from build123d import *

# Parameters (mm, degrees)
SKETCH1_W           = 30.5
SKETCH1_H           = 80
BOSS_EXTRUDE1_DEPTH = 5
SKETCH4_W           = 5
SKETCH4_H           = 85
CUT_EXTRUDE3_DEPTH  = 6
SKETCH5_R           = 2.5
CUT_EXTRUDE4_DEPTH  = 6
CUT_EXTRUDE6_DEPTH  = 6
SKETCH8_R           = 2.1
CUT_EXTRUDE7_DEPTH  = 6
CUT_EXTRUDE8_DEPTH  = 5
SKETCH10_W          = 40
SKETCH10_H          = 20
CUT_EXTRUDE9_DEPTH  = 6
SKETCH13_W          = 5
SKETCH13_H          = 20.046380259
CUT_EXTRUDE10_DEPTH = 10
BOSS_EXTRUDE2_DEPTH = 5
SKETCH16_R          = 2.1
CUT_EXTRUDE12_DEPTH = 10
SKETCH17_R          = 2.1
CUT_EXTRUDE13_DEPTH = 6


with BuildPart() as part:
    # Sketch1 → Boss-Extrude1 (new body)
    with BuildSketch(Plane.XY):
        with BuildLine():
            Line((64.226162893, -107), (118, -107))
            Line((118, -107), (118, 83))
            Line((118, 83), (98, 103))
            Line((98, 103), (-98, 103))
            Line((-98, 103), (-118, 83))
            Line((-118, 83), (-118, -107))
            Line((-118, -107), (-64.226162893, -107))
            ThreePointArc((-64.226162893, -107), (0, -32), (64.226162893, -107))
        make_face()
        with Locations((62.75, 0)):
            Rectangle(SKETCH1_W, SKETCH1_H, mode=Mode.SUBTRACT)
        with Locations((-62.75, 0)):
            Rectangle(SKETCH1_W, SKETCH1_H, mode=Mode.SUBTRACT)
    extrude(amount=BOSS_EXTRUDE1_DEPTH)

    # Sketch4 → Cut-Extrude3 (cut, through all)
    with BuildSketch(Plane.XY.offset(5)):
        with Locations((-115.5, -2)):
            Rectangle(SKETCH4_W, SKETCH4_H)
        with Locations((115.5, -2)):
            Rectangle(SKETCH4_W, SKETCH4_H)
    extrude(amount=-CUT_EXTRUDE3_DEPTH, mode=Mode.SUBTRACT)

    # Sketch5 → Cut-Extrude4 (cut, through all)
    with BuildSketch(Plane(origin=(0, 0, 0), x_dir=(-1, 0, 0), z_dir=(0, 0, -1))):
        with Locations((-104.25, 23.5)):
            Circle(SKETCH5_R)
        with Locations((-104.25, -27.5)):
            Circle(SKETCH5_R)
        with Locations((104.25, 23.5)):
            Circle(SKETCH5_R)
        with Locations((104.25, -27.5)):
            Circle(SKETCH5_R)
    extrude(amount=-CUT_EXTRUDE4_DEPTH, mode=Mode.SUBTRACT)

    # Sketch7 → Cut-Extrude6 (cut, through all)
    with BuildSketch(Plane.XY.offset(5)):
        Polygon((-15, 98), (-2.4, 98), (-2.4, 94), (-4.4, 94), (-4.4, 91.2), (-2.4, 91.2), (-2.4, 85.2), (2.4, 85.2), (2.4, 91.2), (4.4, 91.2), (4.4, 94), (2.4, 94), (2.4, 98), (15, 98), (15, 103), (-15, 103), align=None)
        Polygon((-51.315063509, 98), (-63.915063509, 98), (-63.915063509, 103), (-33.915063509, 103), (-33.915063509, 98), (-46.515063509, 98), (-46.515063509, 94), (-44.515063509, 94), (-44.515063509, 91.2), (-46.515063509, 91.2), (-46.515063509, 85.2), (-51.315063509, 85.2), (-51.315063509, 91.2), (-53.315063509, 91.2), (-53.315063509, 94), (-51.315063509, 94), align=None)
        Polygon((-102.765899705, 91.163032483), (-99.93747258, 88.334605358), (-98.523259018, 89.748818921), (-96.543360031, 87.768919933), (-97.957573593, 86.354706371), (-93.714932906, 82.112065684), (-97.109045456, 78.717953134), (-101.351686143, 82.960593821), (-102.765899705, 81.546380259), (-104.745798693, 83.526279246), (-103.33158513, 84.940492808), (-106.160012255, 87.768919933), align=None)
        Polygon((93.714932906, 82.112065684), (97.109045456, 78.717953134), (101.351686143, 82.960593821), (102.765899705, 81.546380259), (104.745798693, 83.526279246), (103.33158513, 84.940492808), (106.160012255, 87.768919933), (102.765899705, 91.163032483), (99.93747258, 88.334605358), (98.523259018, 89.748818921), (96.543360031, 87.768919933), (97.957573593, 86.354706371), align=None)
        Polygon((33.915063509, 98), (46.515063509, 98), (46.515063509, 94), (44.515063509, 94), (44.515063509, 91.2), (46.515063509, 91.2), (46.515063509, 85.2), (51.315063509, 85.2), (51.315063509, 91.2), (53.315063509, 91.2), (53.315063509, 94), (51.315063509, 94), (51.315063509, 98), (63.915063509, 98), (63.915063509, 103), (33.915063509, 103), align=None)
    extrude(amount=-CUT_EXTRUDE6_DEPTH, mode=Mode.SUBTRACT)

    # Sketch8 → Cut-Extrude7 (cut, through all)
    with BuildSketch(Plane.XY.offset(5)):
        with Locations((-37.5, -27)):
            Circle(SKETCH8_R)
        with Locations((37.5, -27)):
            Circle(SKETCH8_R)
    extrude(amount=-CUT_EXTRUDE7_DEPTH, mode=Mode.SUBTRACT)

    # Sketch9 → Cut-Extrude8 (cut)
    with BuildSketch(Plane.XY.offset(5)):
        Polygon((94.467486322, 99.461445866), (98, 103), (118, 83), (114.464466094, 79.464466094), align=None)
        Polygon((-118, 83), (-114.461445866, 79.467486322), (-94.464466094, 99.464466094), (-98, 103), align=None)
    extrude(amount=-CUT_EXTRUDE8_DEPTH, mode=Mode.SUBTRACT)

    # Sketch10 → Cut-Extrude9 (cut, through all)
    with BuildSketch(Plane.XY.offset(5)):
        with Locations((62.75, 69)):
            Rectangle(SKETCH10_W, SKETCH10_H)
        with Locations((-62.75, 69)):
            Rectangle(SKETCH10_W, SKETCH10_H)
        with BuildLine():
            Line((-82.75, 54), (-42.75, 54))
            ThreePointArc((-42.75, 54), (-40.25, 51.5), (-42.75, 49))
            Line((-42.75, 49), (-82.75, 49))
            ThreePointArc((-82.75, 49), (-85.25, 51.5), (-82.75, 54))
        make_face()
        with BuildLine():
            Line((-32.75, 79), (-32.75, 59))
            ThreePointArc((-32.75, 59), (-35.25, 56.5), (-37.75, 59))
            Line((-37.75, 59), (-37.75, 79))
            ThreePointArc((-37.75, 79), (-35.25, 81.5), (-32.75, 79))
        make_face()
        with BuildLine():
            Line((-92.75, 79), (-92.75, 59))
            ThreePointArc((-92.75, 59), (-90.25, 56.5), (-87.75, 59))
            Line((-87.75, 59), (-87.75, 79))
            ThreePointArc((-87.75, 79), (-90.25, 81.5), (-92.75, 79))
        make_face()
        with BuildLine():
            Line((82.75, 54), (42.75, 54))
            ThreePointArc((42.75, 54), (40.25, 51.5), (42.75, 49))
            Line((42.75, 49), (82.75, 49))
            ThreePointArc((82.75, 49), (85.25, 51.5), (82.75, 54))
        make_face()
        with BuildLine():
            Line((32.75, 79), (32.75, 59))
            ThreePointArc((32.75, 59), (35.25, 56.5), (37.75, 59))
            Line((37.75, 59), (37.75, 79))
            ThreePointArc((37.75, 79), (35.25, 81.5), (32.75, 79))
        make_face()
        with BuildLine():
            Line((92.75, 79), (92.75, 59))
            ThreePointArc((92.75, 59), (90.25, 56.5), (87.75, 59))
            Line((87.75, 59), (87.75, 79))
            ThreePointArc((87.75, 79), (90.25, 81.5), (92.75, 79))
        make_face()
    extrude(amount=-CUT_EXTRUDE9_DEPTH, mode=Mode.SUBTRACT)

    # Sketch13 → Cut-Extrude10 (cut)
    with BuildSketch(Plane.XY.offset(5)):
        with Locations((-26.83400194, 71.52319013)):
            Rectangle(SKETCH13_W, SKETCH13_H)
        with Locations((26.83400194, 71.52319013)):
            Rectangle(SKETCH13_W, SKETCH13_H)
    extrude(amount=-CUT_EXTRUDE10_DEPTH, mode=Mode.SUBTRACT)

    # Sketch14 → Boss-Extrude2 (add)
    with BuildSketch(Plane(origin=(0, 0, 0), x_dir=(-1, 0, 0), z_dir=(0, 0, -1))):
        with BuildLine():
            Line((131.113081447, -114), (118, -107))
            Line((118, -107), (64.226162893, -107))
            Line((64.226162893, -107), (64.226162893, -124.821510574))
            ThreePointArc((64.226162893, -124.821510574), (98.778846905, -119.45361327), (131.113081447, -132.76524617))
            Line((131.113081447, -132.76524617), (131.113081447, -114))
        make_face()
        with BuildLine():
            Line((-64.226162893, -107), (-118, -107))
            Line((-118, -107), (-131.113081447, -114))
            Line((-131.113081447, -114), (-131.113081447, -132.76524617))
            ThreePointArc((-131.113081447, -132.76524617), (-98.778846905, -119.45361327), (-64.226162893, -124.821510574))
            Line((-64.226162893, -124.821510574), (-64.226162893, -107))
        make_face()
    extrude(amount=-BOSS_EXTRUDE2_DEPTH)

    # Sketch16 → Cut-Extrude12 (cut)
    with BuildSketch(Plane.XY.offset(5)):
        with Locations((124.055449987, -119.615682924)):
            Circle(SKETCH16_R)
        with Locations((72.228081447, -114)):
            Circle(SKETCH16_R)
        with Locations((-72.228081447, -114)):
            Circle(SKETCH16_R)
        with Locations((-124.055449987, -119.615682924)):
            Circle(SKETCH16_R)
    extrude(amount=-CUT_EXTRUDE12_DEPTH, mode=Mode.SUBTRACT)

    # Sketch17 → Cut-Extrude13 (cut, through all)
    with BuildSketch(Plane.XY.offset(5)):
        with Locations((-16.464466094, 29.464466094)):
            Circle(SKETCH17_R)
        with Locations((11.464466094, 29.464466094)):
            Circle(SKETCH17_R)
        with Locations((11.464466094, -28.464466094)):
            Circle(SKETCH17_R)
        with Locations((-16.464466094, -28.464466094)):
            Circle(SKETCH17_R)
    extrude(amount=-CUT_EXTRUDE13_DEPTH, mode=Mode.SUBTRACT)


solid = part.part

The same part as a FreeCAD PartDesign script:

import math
import FreeCAD as App
import Part
import Sketcher
from FreeCAD import Vector
Q = App.Units.Quantity

doc = App.newDocument("Part")
body = doc.addObject("PartDesign::Body", "Body")

# Sketch on XY plane
sketch1 = body.newObject("Sketcher::SketchObject", "Sketch")
sketch1.AttachmentSupport = (doc.getObject("XY_Plane"), [""])
sketch1.MapMode = "FlatFace"
sketch1.addGeometry([
    Part.LineSegment(Vector(64, -107, 0), Vector(118, -107, 0)),  # 0
    Part.LineSegment(Vector(118, -107, 0), Vector(118, 83, 0)),  # 1
    Part.LineSegment(Vector(118, 83, 0), Vector(98, 103, 0)),  # 2
    Part.LineSegment(Vector(98, 103, 0), Vector(-98, 103, 0)),  # 3
    Part.LineSegment(Vector(-98, 103, 0), Vector(-118, 83, 0)),  # 4
    Part.LineSegment(Vector(-118, 83, 0), Vector(-118, -107, 0)),  # 5
    Part.LineSegment(Vector(-118, -107, 0), Vector(-64, -107, 0)),  # 6
    Part.ArcOfCircle(Part.Circle(Vector(0, -97, 0), Vector(0, 0, 1), 65), math.radians(-9), math.radians(189)),  # 7
    Part.LineSegment(Vector(-48, -40, 0), Vector(-78, -40, 0)),  # 8
    Part.LineSegment(Vector(-78, -40, 0), Vector(-78, 40, 0)),  # 9
    Part.LineSegment(Vector(-78, 40, 0), Vector(-48, 40, 0)),  # 10
    Part.LineSegment(Vector(-48, 40, 0), Vector(-48, -40, 0)),  # 11
    Part.LineSegment(Vector(78, -40, 0), Vector(48, -40, 0)),  # 12
    Part.LineSegment(Vector(48, -40, 0), Vector(48, 40, 0)),  # 13
    Part.LineSegment(Vector(48, 40, 0), Vector(78, 40, 0)),  # 14
    Part.LineSegment(Vector(78, 40, 0), Vector(78, -40, 0)),  # 15
], False)
sketch1.addConstraint([
    Sketcher.Constraint("Coincident", 0, 2, 1, 1),
    Sketcher.Constraint("Coincident", 1, 2, 2, 1),
    Sketcher.Constraint("Coincident", 2, 2, 3, 1),
    Sketcher.Constraint("Coincident", 3, 2, 4, 1),
    Sketcher.Constraint("Coincident", 4, 2, 5, 1),
    Sketcher.Constraint("Coincident", 5, 2, 6, 1),
    Sketcher.Constraint("Coincident", 6, 2, 7, 2),
    Sketcher.Constraint("Coincident", 7, 1, 0, 1),
    Sketcher.Constraint("Coincident", 8, 2, 9, 1),
    Sketcher.Constraint("Coincident", 9, 2, 10, 1),
    Sketcher.Constraint("Coincident", 10, 2, 11, 1),
    Sketcher.Constraint("Coincident", 11, 2, 8, 1),
    Sketcher.Constraint("Coincident", 12, 2, 13, 1),
    Sketcher.Constraint("Coincident", 13, 2, 14, 1),
    Sketcher.Constraint("Coincident", 14, 2, 15, 1),
    Sketcher.Constraint("Coincident", 15, 2, 12, 1),
    Sketcher.Constraint("Horizontal", 0),
    Sketcher.Constraint("Vertical", 1),
    Sketcher.Constraint("Horizontal", 3),
    Sketcher.Constraint("Vertical", 5),
    Sketcher.Constraint("Horizontal", 6),
    Sketcher.Constraint("Horizontal", 8),
    Sketcher.Constraint("Vertical", 9),
    Sketcher.Constraint("Horizontal", 10),
    Sketcher.Constraint("Vertical", 11),
    Sketcher.Constraint("Horizontal", 12),
    Sketcher.Constraint("Vertical", 13),
    Sketcher.Constraint("Horizontal", 14),
    Sketcher.Constraint("Vertical", 15),
    Sketcher.Constraint("Symmetric", 10, 2, 12, 2, -1, 1),
    Sketcher.Constraint("Symmetric", 8, 2, 14, 2, -1, 1),
    Sketcher.Constraint("Symmetric", 1, 2, 4, 2, -2),
    Sketcher.Constraint("Symmetric", 6, 2, 7, 1, -2),
    Sketcher.Constraint("Perpendicular", 2, 4),
    Sketcher.Constraint("Horizontal", 11, 2, 12, 2),
    Sketcher.Constraint("Equal", 2, 4),
    Sketcher.Constraint("Radius", 7, Q("65 mm")),
    Sketcher.Constraint("DistanceX", 3, 2, 3, 1, Q("196 mm")),
    Sketcher.Constraint("DistanceY", 1, 1, 1, 2, Q("190 mm")),
    Sketcher.Constraint("DistanceY", 9, 1, 9, 2, Q("80 mm")),
    Sketcher.Constraint("DistanceX", 8, 2, 8, 1, Q("30.5 mm")),
    Sketcher.Constraint("DistanceY", 7, 3, -1, 1, Q("97 mm")),
    Sketcher.Constraint("DistanceX", -1, 1, 0, 2, Q("118 mm")),
    Sketcher.Constraint("DistanceY", 0, 2, -1, 1, Q("107 mm")),
    Sketcher.Constraint("DistanceX", 8, 2, -1, 1, Q("78 mm")),
])
pad1 = body.newObject("PartDesign::Pad", "Pad")
pad1.Profile = sketch1
pad1.Length = 5

# Sketch on XY plane
sketch2 = body.newObject("Sketcher::SketchObject", "Sketch001")
sketch2.AttachmentSupport = (doc.getObject("XY_Plane"), [""])
sketch2.MapMode = "FlatFace"
sketch2.AttachmentOffset = App.Placement(Vector(0, 0, 5), App.Rotation())
sketch2.addGeometry([
    Part.LineSegment(Vector(-118, 40, 0), Vector(-118, -44, 0)),  # 0
    Part.LineSegment(Vector(-118, -44, 0), Vector(-113, -44, 0)),  # 1
    Part.LineSegment(Vector(-113, -44, 0), Vector(-113, 40, 0)),  # 2
    Part.LineSegment(Vector(-113, 40, 0), Vector(-118, 40, 0)),  # 3
    Part.LineSegment(Vector(113, 40, 0), Vector(113, -44, 0)),  # 4
    Part.LineSegment(Vector(113, -44, 0), Vector(118, -44, 0)),  # 5
    Part.LineSegment(Vector(118, -44, 0), Vector(118, 40, 0)),  # 6
    Part.LineSegment(Vector(118, 40, 0), Vector(113, 40, 0)),  # 7
], False)
sketch2.addConstraint([
    Sketcher.Constraint("Coincident", 0, 2, 1, 1),
    Sketcher.Constraint("Coincident", 1, 2, 2, 1),
    Sketcher.Constraint("Coincident", 2, 2, 3, 1),
    Sketcher.Constraint("Coincident", 3, 2, 0, 1),
    Sketcher.Constraint("Coincident", 4, 2, 5, 1),
    Sketcher.Constraint("Coincident", 5, 2, 6, 1),
    Sketcher.Constraint("Coincident", 6, 2, 7, 1),
    Sketcher.Constraint("Coincident", 7, 2, 4, 1),
    Sketcher.Constraint("Vertical", 0),
    Sketcher.Constraint("Horizontal", 1),
    Sketcher.Constraint("Vertical", 2),
    Sketcher.Constraint("Horizontal", 3),
    Sketcher.Constraint("Vertical", 4),
    Sketcher.Constraint("Horizontal", 5),
    Sketcher.Constraint("Vertical", 6),
    Sketcher.Constraint("Horizontal", 7),
    Sketcher.Constraint("Symmetric", 1, 2, 4, 2, -2),
    Sketcher.Constraint("Symmetric", 3, 2, 6, 2, -2),
    Sketcher.Constraint("DistanceX", 1, 1, 1, 2, Q("5 mm")),
    Sketcher.Constraint("DistanceY", 0, 2, 0, 1, Q("85 mm")),
    Sketcher.Constraint("DistanceX", 0, 2, -1, 1, Q("118 mm")),
    Sketcher.Constraint("DistanceY", 0, 2, -1, 1, Q("44.5 mm")),
])
pocket1 = body.newObject("PartDesign::Pocket", "Pocket")
pocket1.Profile = sketch2
pocket1.Type = "ThroughAll"

# Sketch on XY plane
sketch3 = body.newObject("Sketcher::SketchObject", "Sketch002")
sketch3.AttachmentSupport = (doc.getObject("XY_Plane"), [""])
sketch3.MapMode = "FlatFace"
sketch3.addGeometry([
    Part.Circle(Vector(104.2, 23.5, 0), Vector(0, 0, 1), 2.5),
    Part.Circle(Vector(104.2, -27.5, 0), Vector(0, 0, 1), 2.5),
    Part.Circle(Vector(-104.2, 23.5, 0), Vector(0, 0, 1), 2.5),
    Part.Circle(Vector(-104.2, -27.5, 0), Vector(0, 0, 1), 2.5),
], False)
sketch3.addConstraint([
    Sketcher.Constraint("Equal", 0, 1),
    Sketcher.Constraint("Equal", 1, 2),
    Sketcher.Constraint("Equal", 2, 3),
    Sketcher.Constraint("Symmetric", 0, 3, 2, 3, -2),
    Sketcher.Constraint("Symmetric", 1, 3, 3, 3, -2),
    Sketcher.Constraint("Vertical", 0, 3, 1, 3),
    Sketcher.Constraint("Diameter", 0, Q("5 mm")),
    Sketcher.Constraint("DistanceY", 1, 3, 0, 3, Q("51 mm")),
    Sketcher.Constraint("DistanceY", -1, 1, 0, 3, Q("23.5 mm")),
    Sketcher.Constraint("DistanceX", 2, 3, 0, 3, Q("208.5 mm")),
])
pocket2 = body.newObject("PartDesign::Pocket", "Pocket001")
pocket2.Profile = sketch3
pocket2.Type = "ThroughAll"
pocket2.Reversed = True

# Sketch on XY plane
sketch4 = body.newObject("Sketcher::SketchObject", "Sketch003")
sketch4.AttachmentSupport = (doc.getObject("XY_Plane"), [""])
sketch4.MapMode = "FlatFace"
sketch4.AttachmentOffset = App.Placement(Vector(0, 0, 5), App.Rotation())
sketch4.addGeometry([
    Part.LineSegment(Vector(-15, 98, 0), Vector(-2.4, 98, 0)),  # 0
    Part.LineSegment(Vector(-2.4, 98, 0), Vector(-2.4, 94, 0)),  # 1
    Part.LineSegment(Vector(-2.4, 94, 0), Vector(-4.4, 94, 0)),  # 2
    Part.LineSegment(Vector(-4.4, 94, 0), Vector(-4.4, 91.2, 0)),  # 3
    Part.LineSegment(Vector(-4.4, 91.2, 0), Vector(-2.4, 91.2, 0)),  # 4
    Part.LineSegment(Vector(-2.4, 91.2, 0), Vector(-2.4, 85.2, 0)),  # 5
    Part.LineSegment(Vector(-2.4, 85.2, 0), Vector(2.4, 85.2, 0)),  # 6
    Part.LineSegment(Vector(2.4, 85.2, 0), Vector(2.4, 91.2, 0)),  # 7
    Part.LineSegment(Vector(2.4, 91.2, 0), Vector(4.4, 91.2, 0)),  # 8
    Part.LineSegment(Vector(4.4, 91.2, 0), Vector(4.4, 94, 0)),  # 9
    Part.LineSegment(Vector(4.4, 94, 0), Vector(2.4, 94, 0)),  # 10
    Part.LineSegment(Vector(2.4, 94, 0), Vector(2.4, 98, 0)),  # 11
    Part.LineSegment(Vector(2.4, 98, 0), Vector(15, 98, 0)),  # 12
    Part.LineSegment(Vector(15, 98, 0), Vector(15, 103, 0)),  # 13
    Part.LineSegment(Vector(15, 103, 0), Vector(-15, 103, 0)),  # 14
    Part.LineSegment(Vector(-15, 103, 0), Vector(-15, 98, 0)),  # 15
    Part.LineSegment(Vector(-63.9, 98, 0), Vector(-51.3, 98, 0)),  # 16
    Part.LineSegment(Vector(-51.3, 98, 0), Vector(-51.3, 94, 0)),  # 17
    Part.LineSegment(Vector(-51.3, 94, 0), Vector(-53.3, 94, 0)),  # 18
    Part.LineSegment(Vector(-53.3, 94, 0), Vector(-53.3, 91.2, 0)),  # 19
    Part.LineSegment(Vector(-53.3, 91.2, 0), Vector(-51.3, 91.2, 0)),  # 20
    Part.LineSegment(Vector(-51.3, 91.2, 0), Vector(-51.3, 85.2, 0)),  # 21
    Part.LineSegment(Vector(-51.3, 85.2, 0), Vector(-46.5, 85.2, 0)),  # 22
    Part.LineSegment(Vector(-46.5, 85.2, 0), Vector(-46.5, 91.2, 0)),  # 23
    Part.LineSegment(Vector(-46.5, 91.2, 0), Vector(-44.5, 91.2, 0)),  # 24
    Part.LineSegment(Vector(-44.5, 91.2, 0), Vector(-44.5, 94, 0)),  # 25
    Part.LineSegment(Vector(-44.5, 94, 0), Vector(-46.5, 94, 0)),  # 26
    Part.LineSegment(Vector(-46.5, 94, 0), Vector(-46.5, 98, 0)),  # 27
    Part.LineSegment(Vector(-46.5, 98, 0), Vector(-33.9, 98, 0)),  # 28
    Part.LineSegment(Vector(-33.9, 98, 0), Vector(-33.9, 103, 0)),  # 29
    Part.LineSegment(Vector(-33.9, 103, 0), Vector(-63.9, 103, 0)),  # 30
    Part.LineSegment(Vector(-63.9, 103, 0), Vector(-63.9, 98, 0)),  # 31
    Part.LineSegment(Vector(-99.9, 88.3, 0), Vector(-102.8, 91.2, 0)),  # 32
    Part.LineSegment(Vector(-102.8, 91.2, 0), Vector(-106.2, 87.8, 0)),  # 33
    Part.LineSegment(Vector(-106.2, 87.8, 0), Vector(-103.3, 84.9, 0)),  # 34
    Part.LineSegment(Vector(-103.3, 84.9, 0), Vector(-104.7, 83.5, 0)),  # 35
    Part.LineSegment(Vector(-104.7, 83.5, 0), Vector(-102.8, 81.5, 0)),  # 36
    Part.LineSegment(Vector(-102.8, 81.5, 0), Vector(-101.4, 83, 0)),  # 37
    Part.LineSegment(Vector(-101.4, 83, 0), Vector(-97.1, 78.7, 0)),  # 38
    Part.LineSegment(Vector(-97.1, 78.7, 0), Vector(-93.7, 82.1, 0)),  # 39
    Part.LineSegment(Vector(-93.7, 82.1, 0), Vector(-98, 86.4, 0)),  # 40
    Part.LineSegment(Vector(-98, 86.4, 0), Vector(-96.5, 87.8, 0)),  # 41
    Part.LineSegment(Vector(-96.5, 87.8, 0), Vector(-98.5, 89.7, 0)),  # 42
    Part.LineSegment(Vector(-98.5, 89.7, 0), Vector(-99.9, 88.3, 0)),  # 43
    Part.LineSegment(Vector(93.7, 82.1, 0), Vector(97.1, 78.7, 0)),  # 44
    Part.LineSegment(Vector(97.1, 78.7, 0), Vector(101.4, 83, 0)),  # 45
    Part.LineSegment(Vector(101.4, 83, 0), Vector(102.8, 81.5, 0)),  # 46
    Part.LineSegment(Vector(102.8, 81.5, 0), Vector(104.7, 83.5, 0)),  # 47
    Part.LineSegment(Vector(104.7, 83.5, 0), Vector(103.3, 84.9, 0)),  # 48
    Part.LineSegment(Vector(103.3, 84.9, 0), Vector(106.2, 87.8, 0)),  # 49
    Part.LineSegment(Vector(106.2, 87.8, 0), Vector(102.8, 91.2, 0)),  # 50
    Part.LineSegment(Vector(102.8, 91.2, 0), Vector(99.9, 88.3, 0)),  # 51
    Part.LineSegment(Vector(99.9, 88.3, 0), Vector(98.5, 89.7, 0)),  # 52
    Part.LineSegment(Vector(98.5, 89.7, 0), Vector(96.5, 87.8, 0)),  # 53
    Part.LineSegment(Vector(96.5, 87.8, 0), Vector(98, 86.4, 0)),  # 54
    Part.LineSegment(Vector(98, 86.4, 0), Vector(93.7, 82.1, 0)),  # 55
    Part.LineSegment(Vector(33.9, 98, 0), Vector(46.5, 98, 0)),  # 56
    Part.LineSegment(Vector(46.5, 98, 0), Vector(46.5, 94, 0)),  # 57
    Part.LineSegment(Vector(46.5, 94, 0), Vector(44.5, 94, 0)),  # 58
    Part.LineSegment(Vector(44.5, 94, 0), Vector(44.5, 91.2, 0)),  # 59
    Part.LineSegment(Vector(44.5, 91.2, 0), Vector(46.5, 91.2, 0)),  # 60
    Part.LineSegment(Vector(46.5, 91.2, 0), Vector(46.5, 85.2, 0)),  # 61
    Part.LineSegment(Vector(46.5, 85.2, 0), Vector(51.3, 85.2, 0)),  # 62
    Part.LineSegment(Vector(51.3, 85.2, 0), Vector(51.3, 91.2, 0)),  # 63
    Part.LineSegment(Vector(51.3, 91.2, 0), Vector(53.3, 91.2, 0)),  # 64
    Part.LineSegment(Vector(53.3, 91.2, 0), Vector(53.3, 94, 0)),  # 65
    Part.LineSegment(Vector(53.3, 94, 0), Vector(51.3, 94, 0)),  # 66
    Part.LineSegment(Vector(51.3, 94, 0), Vector(51.3, 98, 0)),  # 67
    Part.LineSegment(Vector(51.3, 98, 0), Vector(63.9, 98, 0)),  # 68
    Part.LineSegment(Vector(63.9, 98, 0), Vector(63.9, 103, 0)),  # 69
    Part.LineSegment(Vector(63.9, 103, 0), Vector(33.9, 103, 0)),  # 70
    Part.LineSegment(Vector(33.9, 103, 0), Vector(33.9, 98, 0)),  # 71
], False)
sketch4.addConstraint([
    Sketcher.Constraint("Coincident", 0, 2, 1, 1),
    Sketcher.Constraint("Coincident", 1, 2, 2, 1),
    Sketcher.Constraint("Coincident", 2, 2, 3, 1),
    Sketcher.Constraint("Coincident", 3, 2, 4, 1),
    Sketcher.Constraint("Coincident", 4, 2, 5, 1),
    Sketcher.Constraint("Coincident", 5, 2, 6, 1),
    Sketcher.Constraint("Coincident", 6, 2, 7, 1),
    Sketcher.Constraint("Coincident", 7, 2, 8, 1),
    Sketcher.Constraint("Coincident", 8, 2, 9, 1),
    Sketcher.Constraint("Coincident", 9, 2, 10, 1),
    Sketcher.Constraint("Coincident", 10, 2, 11, 1),
    Sketcher.Constraint("Coincident", 11, 2, 12, 1),
    Sketcher.Constraint("Coincident", 12, 2, 13, 1),
    Sketcher.Constraint("Coincident", 13, 2, 14, 1),
    Sketcher.Constraint("Coincident", 14, 2, 15, 1),
    Sketcher.Constraint("Coincident", 15, 2, 0, 1),
    Sketcher.Constraint("Coincident", 16, 2, 17, 1),
    Sketcher.Constraint("Coincident", 17, 2, 18, 1),
    Sketcher.Constraint("Coincident", 18, 2, 19, 1),
    Sketcher.Constraint("Coincident", 19, 2, 20, 1),
    Sketcher.Constraint("Coincident", 20, 2, 21, 1),
    Sketcher.Constraint("Coincident", 21, 2, 22, 1),
    Sketcher.Constraint("Coincident", 22, 2, 23, 1),
    Sketcher.Constraint("Coincident", 23, 2, 24, 1),
    Sketcher.Constraint("Coincident", 24, 2, 25, 1),
    Sketcher.Constraint("Coincident", 25, 2, 26, 1),
    Sketcher.Constraint("Coincident", 26, 2, 27, 1),
    Sketcher.Constraint("Coincident", 27, 2, 28, 1),
    Sketcher.Constraint("Coincident", 28, 2, 29, 1),
    Sketcher.Constraint("Coincident", 29, 2, 30, 1),
    Sketcher.Constraint("Coincident", 30, 2, 31, 1),
    Sketcher.Constraint("Coincident", 31, 2, 16, 1),
    Sketcher.Constraint("Coincident", 32, 2, 33, 1),
    Sketcher.Constraint("Coincident", 33, 2, 34, 1),
    Sketcher.Constraint("Coincident", 34, 2, 35, 1),
    Sketcher.Constraint("Coincident", 35, 2, 36, 1),
    Sketcher.Constraint("Coincident", 36, 2, 37, 1),
    Sketcher.Constraint("Coincident", 37, 2, 38, 1),
    Sketcher.Constraint("Coincident", 38, 2, 39, 1),
    Sketcher.Constraint("Coincident", 39, 2, 40, 1),
    Sketcher.Constraint("Coincident", 40, 2, 41, 1),
    Sketcher.Constraint("Coincident", 41, 2, 42, 1),
    Sketcher.Constraint("Coincident", 42, 2, 43, 1),
    Sketcher.Constraint("Coincident", 43, 2, 32, 1),
    Sketcher.Constraint("Coincident", 44, 2, 45, 1),
    Sketcher.Constraint("Coincident", 45, 2, 46, 1),
    Sketcher.Constraint("Coincident", 46, 2, 47, 1),
    Sketcher.Constraint("Coincident", 47, 2, 48, 1),
    Sketcher.Constraint("Coincident", 48, 2, 49, 1),
    Sketcher.Constraint("Coincident", 49, 2, 50, 1),
    Sketcher.Constraint("Coincident", 50, 2, 51, 1),
    Sketcher.Constraint("Coincident", 51, 2, 52, 1),
    Sketcher.Constraint("Coincident", 52, 2, 53, 1),
    Sketcher.Constraint("Coincident", 53, 2, 54, 1),
    Sketcher.Constraint("Coincident", 54, 2, 55, 1),
    Sketcher.Constraint("Coincident", 55, 2, 44, 1),
    Sketcher.Constraint("Coincident", 56, 2, 57, 1),
    Sketcher.Constraint("Coincident", 57, 2, 58, 1),
    Sketcher.Constraint("Coincident", 58, 2, 59, 1),
    Sketcher.Constraint("Coincident", 59, 2, 60, 1),
    Sketcher.Constraint("Coincident", 60, 2, 61, 1),
    Sketcher.Constraint("Coincident", 61, 2, 62, 1),
    Sketcher.Constraint("Coincident", 62, 2, 63, 1),
    Sketcher.Constraint("Coincident", 63, 2, 64, 1),
    Sketcher.Constraint("Coincident", 64, 2, 65, 1),
    Sketcher.Constraint("Coincident", 65, 2, 66, 1),
    Sketcher.Constraint("Coincident", 66, 2, 67, 1),
    Sketcher.Constraint("Coincident", 67, 2, 68, 1),
    Sketcher.Constraint("Coincident", 68, 2, 69, 1),
    Sketcher.Constraint("Coincident", 69, 2, 70, 1),
    Sketcher.Constraint("Coincident", 70, 2, 71, 1),
    Sketcher.Constraint("Coincident", 71, 2, 56, 1),
    Sketcher.Constraint("Horizontal", 0),
    Sketcher.Constraint("Vertical", 1),
    Sketcher.Constraint("Horizontal", 2),
    Sketcher.Constraint("Vertical", 3),
    Sketcher.Constraint("Horizontal", 4),
    Sketcher.Constraint("Vertical", 5),
    Sketcher.Constraint("Horizontal", 6),
    Sketcher.Constraint("Vertical", 7),
    Sketcher.Constraint("Horizontal", 8),
    Sketcher.Constraint("Vertical", 9),
    Sketcher.Constraint("Horizontal", 10),
    Sketcher.Constraint("Vertical", 11),
    Sketcher.Constraint("Horizontal", 12),
    Sketcher.Constraint("Vertical", 13),
    Sketcher.Constraint("Horizontal", 14),
    Sketcher.Constraint("Vertical", 15),
    Sketcher.Constraint("Horizontal", 16),
    Sketcher.Constraint("Vertical", 17),
    Sketcher.Constraint("Horizontal", 18),
    Sketcher.Constraint("Vertical", 19),
    Sketcher.Constraint("Horizontal", 20),
    Sketcher.Constraint("Vertical", 21),
    Sketcher.Constraint("Horizontal", 22),
    Sketcher.Constraint("Vertical", 23),
    Sketcher.Constraint("Horizontal", 24),
    Sketcher.Constraint("Vertical", 25),
    Sketcher.Constraint("Horizontal", 26),
    Sketcher.Constraint("Vertical", 27),
    Sketcher.Constraint("Horizontal", 28),
    Sketcher.Constraint("Vertical", 29),
    Sketcher.Constraint("Horizontal", 30),
    Sketcher.Constraint("Vertical", 31),
    Sketcher.Constraint("Horizontal", 56),
    Sketcher.Constraint("Vertical", 57),
    Sketcher.Constraint("Horizontal", 58),
    Sketcher.Constraint("Vertical", 59),
    Sketcher.Constraint("Horizontal", 60),
    Sketcher.Constraint("Vertical", 61),
    Sketcher.Constraint("Horizontal", 62),
    Sketcher.Constraint("Vertical", 63),
    Sketcher.Constraint("Horizontal", 64),
    Sketcher.Constraint("Vertical", 65),
    Sketcher.Constraint("Horizontal", 66),
    Sketcher.Constraint("Vertical", 67),
    Sketcher.Constraint("Horizontal", 68),
    Sketcher.Constraint("Vertical", 69),
    Sketcher.Constraint("Horizontal", 70),
    Sketcher.Constraint("Vertical", 71),
    Sketcher.Constraint("Symmetric", 4, 2, 7, 2, -2),
    Sketcher.Constraint("Symmetric", 2, 2, 9, 2, -2),
    Sketcher.Constraint("Symmetric", 0, 2, 11, 2, -2),
    Sketcher.Constraint("Symmetric", 38, 2, 44, 2, -2),
    Sketcher.Constraint("Symmetric", 37, 2, 45, 2, -2),
    Sketcher.Constraint("Symmetric", 36, 2, 46, 2, -2),
    Sketcher.Constraint("Symmetric", 35, 2, 47, 2, -2),
    Sketcher.Constraint("Symmetric", 34, 2, 48, 2, -2),
    Sketcher.Constraint("Symmetric", 33, 2, 49, 2, -2),
    Sketcher.Constraint("Symmetric", 32, 2, 50, 2, -2),
    Sketcher.Constraint("Symmetric", 43, 2, 51, 2, -2),
    Sketcher.Constraint("Symmetric", 42, 2, 52, 2, -2),
    Sketcher.Constraint("Symmetric", 41, 2, 53, 2, -2),
    Sketcher.Constraint("Symmetric", 40, 2, 54, 2, -2),
    Sketcher.Constraint("Symmetric", 39, 2, 55, 2, -2),
    Sketcher.Constraint("Symmetric", 27, 2, 56, 2, -2),
    Sketcher.Constraint("Symmetric", 25, 2, 58, 2, -2),
    Sketcher.Constraint("Symmetric", 23, 2, 60, 2, -2),
    Sketcher.Constraint("Symmetric", 21, 2, 62, 2, -2),
    Sketcher.Constraint("Symmetric", 19, 2, 64, 2, -2),
    Sketcher.Constraint("Symmetric", 17, 2, 66, 2, -2),
    Sketcher.Constraint("Symmetric", 31, 2, 68, 2, -2),
    Sketcher.Constraint("Symmetric", 29, 2, 70, 2, -2),
    Sketcher.Constraint("Perpendicular", 32, 33),
    Sketcher.Constraint("Perpendicular", 33, 34),
    Sketcher.Constraint("Perpendicular", 34, 35),
    Sketcher.Constraint("Perpendicular", 35, 36),
    Sketcher.Constraint("Perpendicular", 36, 37),
    Sketcher.Constraint("Perpendicular", 37, 38),
    Sketcher.Constraint("Perpendicular", 38, 39),
    Sketcher.Constraint("Perpendicular", 39, 40),
    Sketcher.Constraint("Perpendicular", 40, 41),
    Sketcher.Constraint("Perpendicular", 41, 42),
    Sketcher.Constraint("Perpendicular", 42, 43),
    Sketcher.Constraint("Perpendicular", 43, 44),
    Sketcher.Constraint("Horizontal", 15, 2, 16, 2),
    Sketcher.Constraint("Horizontal", 10, 2, 17, 2),
    Sketcher.Constraint("Horizontal", 8, 2, 19, 2),
    Sketcher.Constraint("Horizontal", 6, 2, 21, 2),
    Sketcher.Constraint("Horizontal", 20, 2, 23, 2),
    Sketcher.Constraint("Horizontal", 18, 2, 25, 2),
    Sketcher.Constraint("Horizontal", 16, 2, 27, 2),
    Sketcher.Constraint("Horizontal", 14, 2, 29, 2),
    Sketcher.Constraint("Horizontal", 33, 2, 41, 2),
    Sketcher.Constraint("Vertical", 1, 2, 4, 2),
    Sketcher.Constraint("Vertical", 17, 2, 20, 2),
    Sketcher.Constraint("Vertical", 23, 2, 26, 2),
    Sketcher.Constraint("Vertical", 32, 2, 36, 2),
    Sketcher.Constraint("Equal", 0, 12),
    Sketcher.Constraint("Equal", 12, 16),
    Sketcher.Constraint("Equal", 10, 18),
    Sketcher.Constraint("Equal", 6, 22),
    Sketcher.Constraint("Equal", 20, 24),
    Sketcher.Constraint("Equal", 16, 28),
    Sketcher.Constraint("Equal", 32, 34),
    Sketcher.Constraint("Equal", 35, 37),
    Sketcher.Constraint("Equal", 33, 39),
    Sketcher.Constraint("Equal", 38, 40),
    Sketcher.Constraint("DistanceX", 2, 2, 2, 1, Q("2 mm")),
    Sketcher.Constraint("DistanceX", 14, 2, 14, 1, Q("30 mm")),
    Sketcher.Constraint("DistanceY", 1, 2, 1, 1, Q("4 mm")),
    Sketcher.Constraint("DistanceY", 5, 2, 5, 1, Q("6 mm")),
    Sketcher.Constraint("DistanceY", 13, 1, 13, 2, Q("5 mm")),
    Sketcher.Constraint("Distance", 32, Q("4 mm")),
    Sketcher.Constraint("Distance", 35, Q("2 mm")),
    Sketcher.Constraint("Distance", 38, Q("6 mm")),
    Sketcher.Constraint("DistanceX", 0, 1, 0, 2, Q("12.6 mm")),
    Sketcher.Constraint("DistanceY", 3, 2, 3, 1, Q("2.8 mm")),
    Sketcher.Constraint("DistanceY", -1, 1, 0, 2, Q("98 mm")),
    Sketcher.Constraint("Distance", 33, Q("4.8 mm")),
    Sketcher.Constraint("DistanceX", 32, 2, -1, 1, Q("102.7659 mm")),
    Sketcher.Constraint("DistanceY", -1, 1, 33, 2, Q("87.76892 mm")),
    Sketcher.Constraint("DistanceX", 16, 2, -1, 1, Q("51.315064 mm")),
])
pocket3 = body.newObject("PartDesign::Pocket", "Pocket002")
pocket3.Profile = sketch4
pocket3.Type = "ThroughAll"

# Sketch on XY plane
sketch5 = body.newObject("Sketcher::SketchObject", "Sketch004")
sketch5.AttachmentSupport = (doc.getObject("XY_Plane"), [""])
sketch5.MapMode = "FlatFace"
sketch5.AttachmentOffset = App.Placement(Vector(0, 0, 5), App.Rotation())
sketch5.addGeometry([
    Part.Circle(Vector(-37.5, -27, 0), Vector(0, 0, 1), 2.1),
    Part.Circle(Vector(37.5, -27, 0), Vector(0, 0, 1), 2.1),
], False)
sketch5.addConstraint([
    Sketcher.Constraint("Equal", 0, 1),
    Sketcher.Constraint("Symmetric", 0, 3, 1, 3, -2),
    Sketcher.Constraint("Diameter", 0, Q("4.2 mm")),
    Sketcher.Constraint("DistanceY", 0, 3, -1, 1, Q("27 mm")),
    Sketcher.Constraint("DistanceX", 0, 3, 1, 3, Q("75 mm")),
])
pocket4 = body.newObject("PartDesign::Pocket", "Pocket003")
pocket4.Profile = sketch5
pocket4.Type = "ThroughAll"

# Sketch on XY plane
sketch6 = body.newObject("Sketcher::SketchObject", "Sketch005")
sketch6.AttachmentSupport = (doc.getObject("XY_Plane"), [""])
sketch6.MapMode = "FlatFace"
sketch6.AttachmentOffset = App.Placement(Vector(0, 0, 5), App.Rotation())
sketch6.addGeometry([
    Part.LineSegment(Vector(98, 103, 0), Vector(94, 99, 0)),  # 0
    Part.LineSegment(Vector(94, 99, 0), Vector(114, 79, 0)),  # 1
    Part.LineSegment(Vector(114, 79, 0), Vector(118, 83, 0)),  # 2
    Part.LineSegment(Vector(118, 83, 0), Vector(98, 103, 0)),  # 3
    Part.LineSegment(Vector(-118, 83, 0), Vector(-114, 79, 0)),  # 4
    Part.LineSegment(Vector(-114, 79, 0), Vector(-94, 99, 0)),  # 5
    Part.LineSegment(Vector(-94, 99, 0), Vector(-98, 103, 0)),  # 6
    Part.LineSegment(Vector(-98, 103, 0), Vector(-118, 83, 0)),  # 7
], False)
sketch6.addConstraint([
    Sketcher.Constraint("Coincident", 0, 2, 1, 1),
    Sketcher.Constraint("Coincident", 1, 2, 2, 1),
    Sketcher.Constraint("Coincident", 2, 2, 3, 1),
    Sketcher.Constraint("Coincident", 3, 2, 0, 1),
    Sketcher.Constraint("Coincident", 4, 2, 5, 1),
    Sketcher.Constraint("Coincident", 5, 2, 6, 1),
    Sketcher.Constraint("Coincident", 6, 2, 7, 1),
    Sketcher.Constraint("Coincident", 7, 2, 4, 1),
    Sketcher.Constraint("Symmetric", 3, 2, 6, 2, -2),
    Sketcher.Constraint("Symmetric", 2, 2, 7, 2, -2),
    Sketcher.Constraint("Perpendicular", 1, 2),
    Sketcher.Constraint("Perpendicular", 2, 3),
    Sketcher.Constraint("Perpendicular", 0, 4),
    Sketcher.Constraint("Perpendicular", 3, 5),
    Sketcher.Constraint("Perpendicular", 5, 6),
    Sketcher.Constraint("Perpendicular", 6, 7),
    Sketcher.Constraint("Equal", 2, 4),
    Sketcher.Constraint("Distance", 0, Q("5.000002 mm")),
    Sketcher.Constraint("DistanceX", -1, 1, 2, 2, Q("118 mm")),
    Sketcher.Constraint("DistanceY", -1, 1, 2, 2, Q("83 mm")),
    Sketcher.Constraint("DistanceX", -1, 1, 3, 2, Q("98 mm")),
    Sketcher.Constraint("Distance", 1, Q("28.28 mm")),
])
pocket5 = body.newObject("PartDesign::Pocket", "Pocket004")
pocket5.Profile = sketch6
pocket5.Length = 5

# Sketch on XY plane
sketch7 = body.newObject("Sketcher::SketchObject", "Sketch006")
sketch7.AttachmentSupport = (doc.getObject("XY_Plane"), [""])
sketch7.MapMode = "FlatFace"
sketch7.AttachmentOffset = App.Placement(Vector(0, 0, 5), App.Rotation())
sketch7.addGeometry([
    Part.LineSegment(Vector(42.8, 79, 0), Vector(42.8, 59, 0)),  # 0
    Part.LineSegment(Vector(42.8, 59, 0), Vector(82.8, 59, 0)),  # 1
    Part.LineSegment(Vector(82.8, 59, 0), Vector(82.8, 79, 0)),  # 2
    Part.LineSegment(Vector(82.8, 79, 0), Vector(42.8, 79, 0)),  # 3
    Part.LineSegment(Vector(-82.8, 79, 0), Vector(-82.8, 59, 0)),  # 4
    Part.LineSegment(Vector(-82.8, 59, 0), Vector(-42.8, 59, 0)),  # 5
    Part.LineSegment(Vector(-42.8, 59, 0), Vector(-42.8, 79, 0)),  # 6
    Part.LineSegment(Vector(-42.8, 79, 0), Vector(-82.8, 79, 0)),  # 7
    Part.LineSegment(Vector(-42.8, 54, 0), Vector(-82.8, 54, 0)),  # 8
    Part.ArcOfCircle(Part.Circle(Vector(-82.8, 51.5, 0), Vector(0, 0, 1), 2.5), math.radians(90), math.radians(270)),  # 9
    Part.LineSegment(Vector(-82.8, 49, 0), Vector(-42.8, 49, 0)),  # 10
    Part.ArcOfCircle(Part.Circle(Vector(-42.8, 51.5, 0), Vector(0, 0, 1), 2.5), math.radians(-90), math.radians(90)),  # 11
    Part.LineSegment(Vector(-32.8, 59, 0), Vector(-32.8, 79, 0)),  # 12
    Part.ArcOfCircle(Part.Circle(Vector(-35.2, 79, 0), Vector(0, 0, 1), 2.5), math.radians(0), math.radians(180)),  # 13
    Part.LineSegment(Vector(-37.8, 79, 0), Vector(-37.8, 59, 0)),  # 14
    Part.ArcOfCircle(Part.Circle(Vector(-35.2, 59, 0), Vector(0, 0, 1), 2.5), math.radians(180), math.radians(360)),  # 15
    Part.LineSegment(Vector(-92.8, 79, 0), Vector(-92.8, 59, 0)),  # 16
    Part.ArcOfCircle(Part.Circle(Vector(-90.2, 59, 0), Vector(0, 0, 1), 2.5), math.radians(180), math.radians(360)),  # 17
    Part.LineSegment(Vector(-87.8, 59, 0), Vector(-87.8, 79, 0)),  # 18
    Part.ArcOfCircle(Part.Circle(Vector(-90.2, 79, 0), Vector(0, 0, 1), 2.5), math.radians(0), math.radians(180)),  # 19
    Part.LineSegment(Vector(82.8, 54, 0), Vector(42.8, 54, 0)),  # 20
    Part.ArcOfCircle(Part.Circle(Vector(42.8, 51.5, 0), Vector(0, 0, 1), 2.5), math.radians(90), math.radians(270)),  # 21
    Part.LineSegment(Vector(42.8, 49, 0), Vector(82.8, 49, 0)),  # 22
    Part.ArcOfCircle(Part.Circle(Vector(82.8, 51.5, 0), Vector(0, 0, 1), 2.5), math.radians(-90), math.radians(90)),  # 23
    Part.LineSegment(Vector(32.8, 79, 0), Vector(32.8, 59, 0)),  # 24
    Part.ArcOfCircle(Part.Circle(Vector(35.2, 59, 0), Vector(0, 0, 1), 2.5), math.radians(180), math.radians(360)),  # 25
    Part.LineSegment(Vector(37.8, 59, 0), Vector(37.8, 79, 0)),  # 26
    Part.ArcOfCircle(Part.Circle(Vector(35.2, 79, 0), Vector(0, 0, 1), 2.5), math.radians(0), math.radians(180)),  # 27
    Part.LineSegment(Vector(92.8, 59, 0), Vector(92.8, 79, 0)),  # 28
    Part.ArcOfCircle(Part.Circle(Vector(90.2, 79, 0), Vector(0, 0, 1), 2.5), math.radians(0), math.radians(180)),  # 29
    Part.LineSegment(Vector(87.8, 79, 0), Vector(87.8, 59, 0)),  # 30
    Part.ArcOfCircle(Part.Circle(Vector(90.2, 59, 0), Vector(0, 0, 1), 2.5), math.radians(180), math.radians(360)),  # 31
], False)
sketch7.addConstraint([
    Sketcher.Constraint("Coincident", 0, 2, 1, 1),
    Sketcher.Constraint("Coincident", 1, 2, 2, 1),
    Sketcher.Constraint("Coincident", 2, 2, 3, 1),
    Sketcher.Constraint("Coincident", 3, 2, 0, 1),
    Sketcher.Constraint("Coincident", 4, 2, 5, 1),
    Sketcher.Constraint("Coincident", 5, 2, 6, 1),
    Sketcher.Constraint("Coincident", 6, 2, 7, 1),
    Sketcher.Constraint("Coincident", 7, 2, 4, 1),
    Sketcher.Constraint("Tangent", 8, 2, 9, 1),
    Sketcher.Constraint("Tangent", 9, 2, 10, 1),
    Sketcher.Constraint("Tangent", 10, 2, 11, 1),
    Sketcher.Constraint("Tangent", 11, 2, 8, 1),
    Sketcher.Constraint("Tangent", 12, 2, 13, 1),
    Sketcher.Constraint("Tangent", 13, 2, 14, 1),
    Sketcher.Constraint("Tangent", 14, 2, 15, 1),
    Sketcher.Constraint("Tangent", 15, 2, 12, 1),
    Sketcher.Constraint("Tangent", 16, 2, 17, 1),
    Sketcher.Constraint("Tangent", 17, 2, 18, 1),
    Sketcher.Constraint("Tangent", 18, 2, 19, 1),
    Sketcher.Constraint("Tangent", 19, 2, 16, 1),
    Sketcher.Constraint("Tangent", 20, 2, 21, 1),
    Sketcher.Constraint("Tangent", 21, 2, 22, 1),
    Sketcher.Constraint("Tangent", 22, 2, 23, 1),
    Sketcher.Constraint("Tangent", 23, 2, 20, 1),
    Sketcher.Constraint("Tangent", 24, 2, 25, 1),
    Sketcher.Constraint("Tangent", 25, 2, 26, 1),
    Sketcher.Constraint("Tangent", 26, 2, 27, 1),
    Sketcher.Constraint("Tangent", 27, 2, 24, 1),
    Sketcher.Constraint("Tangent", 28, 2, 29, 1),
    Sketcher.Constraint("Tangent", 29, 2, 30, 1),
    Sketcher.Constraint("Tangent", 30, 2, 31, 1),
    Sketcher.Constraint("Tangent", 31, 2, 28, 1),
    Sketcher.Constraint("Vertical", 0),
    Sketcher.Constraint("Horizontal", 1),
    Sketcher.Constraint("Vertical", 2),
    Sketcher.Constraint("Horizontal", 3),
    Sketcher.Constraint("Vertical", 4),
    Sketcher.Constraint("Horizontal", 5),
    Sketcher.Constraint("Vertical", 6),
    Sketcher.Constraint("Horizontal", 7),
    Sketcher.Constraint("Horizontal", 8),
    Sketcher.Constraint("Horizontal", 10),
    Sketcher.Constraint("Vertical", 12),
    Sketcher.Constraint("Vertical", 14),
    Sketcher.Constraint("Vertical", 16),
    Sketcher.Constraint("Vertical", 18),
    Sketcher.Constraint("Horizontal", 20),
    Sketcher.Constraint("Horizontal", 22),
    Sketcher.Constraint("Vertical", 24),
    Sketcher.Constraint("Vertical", 26),
    Sketcher.Constraint("Vertical", 28),
    Sketcher.Constraint("Vertical", 30),
    Sketcher.Constraint("Equal", 11, 13),
    Sketcher.Constraint("Equal", 15, 17),
    Sketcher.Constraint("Equal", 19, 21),
    Sketcher.Constraint("Equal", 23, 25),
    Sketcher.Constraint("Equal", 27, 29),
    Sketcher.Constraint("Symmetric", 11, 3, 21, 3, -2),
    Sketcher.Constraint("Symmetric", 15, 3, 25, 3, -2),
    Sketcher.Constraint("Symmetric", 19, 3, 29, 3, -2),
    Sketcher.Constraint("Symmetric", 1, 2, 4, 2, -2),
    Sketcher.Constraint("Symmetric", 3, 2, 6, 2, -2),
    Sketcher.Constraint("Horizontal", 15, 3, 17, 3),
    Sketcher.Constraint("Horizontal", 13, 3, 19, 3),
    Sketcher.Constraint("Horizontal", 19, 3, 27, 3),
    Sketcher.Constraint("Horizontal", 25, 3, 31, 3),
    Sketcher.Constraint("Horizontal", 31, 3, 0, 2),
    Sketcher.Constraint("Horizontal", 29, 3, 2, 2),
    Sketcher.Constraint("Vertical", 21, 3, 0, 2),
    Sketcher.Constraint("Vertical", 23, 3, 1, 2),
    Sketcher.Constraint("Vertical", 9, 3, 4, 2),
    Sketcher.Constraint("Radius", 9, Q("2.5 mm")),
    Sketcher.Constraint("DistanceX", 1, 1, 1, 2, Q("40 mm")),
    Sketcher.Constraint("DistanceY", 0, 2, 0, 1, Q("20 mm")),
    Sketcher.Constraint("DistanceY", -1, 1, 13, 3, Q("79 mm")),
    Sketcher.Constraint("DistanceY", -1, 1, 8, 2, Q("54 mm")),
    Sketcher.Constraint("DistanceX", 17, 3, 15, 3, Q("55 mm")),
    Sketcher.Constraint("DistanceX", 15, 3, 21, 3, Q("78 mm")),
    Sketcher.Constraint("DistanceX", 6, 2, 12, 2, Q("10 mm")),
])
pocket6 = body.newObject("PartDesign::Pocket", "Pocket005")
pocket6.Profile = sketch7
pocket6.Type = "ThroughAll"

# Sketch on XY plane
sketch8 = body.newObject("Sketcher::SketchObject", "Sketch007")
sketch8.AttachmentSupport = (doc.getObject("XY_Plane"), [""])
sketch8.MapMode = "FlatFace"
sketch8.AttachmentOffset = App.Placement(Vector(0, 0, 5), App.Rotation())
sketch8.addGeometry([
    Part.LineSegment(Vector(-29, 82, 0), Vector(-29, 62, 0)),  # 0
    Part.LineSegment(Vector(-29, 62, 0), Vector(-24, 62, 0)),  # 1
    Part.LineSegment(Vector(-24, 62, 0), Vector(-24, 82, 0)),  # 2
    Part.LineSegment(Vector(-24, 82, 0), Vector(-29, 82, 0)),  # 3
    Part.LineSegment(Vector(24, 82, 0), Vector(24, 62, 0)),  # 4
    Part.LineSegment(Vector(24, 62, 0), Vector(29, 62, 0)),  # 5
    Part.LineSegment(Vector(29, 62, 0), Vector(29, 82, 0)),  # 6
    Part.LineSegment(Vector(29, 82, 0), Vector(24, 82, 0)),  # 7
], False)
sketch8.addConstraint([
    Sketcher.Constraint("Coincident", 0, 2, 1, 1),
    Sketcher.Constraint("Coincident", 1, 2, 2, 1),
    Sketcher.Constraint("Coincident", 2, 2, 3, 1),
    Sketcher.Constraint("Coincident", 3, 2, 0, 1),
    Sketcher.Constraint("Coincident", 4, 2, 5, 1),
    Sketcher.Constraint("Coincident", 5, 2, 6, 1),
    Sketcher.Constraint("Coincident", 6, 2, 7, 1),
    Sketcher.Constraint("Coincident", 7, 2, 4, 1),
    Sketcher.Constraint("Vertical", 0),
    Sketcher.Constraint("Horizontal", 1),
    Sketcher.Constraint("Vertical", 2),
    Sketcher.Constraint("Horizontal", 3),
    Sketcher.Constraint("Vertical", 4),
    Sketcher.Constraint("Horizontal", 5),
    Sketcher.Constraint("Vertical", 6),
    Sketcher.Constraint("Horizontal", 7),
    Sketcher.Constraint("Symmetric", 1, 2, 4, 2, -2),
    Sketcher.Constraint("Symmetric", 3, 2, 6, 2, -2),
    Sketcher.Constraint("DistanceX", 1, 1, 1, 2, Q("5 mm")),
    Sketcher.Constraint("DistanceY", -1, 1, 0, 2, Q("61.5 mm")),
    Sketcher.Constraint("DistanceX", 0, 2, -1, 1, Q("29.334002 mm")),
    Sketcher.Constraint("DistanceY", 0, 2, 0, 1, Q("20.04638 mm")),
])
pocket7 = body.newObject("PartDesign::Pocket", "Pocket006")
pocket7.Profile = sketch8
pocket7.Length = 10

# Sketch on XY plane
sketch9 = body.newObject("Sketcher::SketchObject", "Sketch008")
sketch9.AttachmentSupport = (doc.getObject("XY_Plane"), [""])
sketch9.MapMode = "FlatFace"
sketch9.addGeometry([
    Part.LineSegment(Vector(-131, -114, 0), Vector(-118, -107, 0)),  # 0
    Part.LineSegment(Vector(-118, -107, 0), Vector(-64, -107, 0)),  # 1
    Part.LineSegment(Vector(-64, -107, 0), Vector(-64, -125, 0)),  # 2
    Part.ArcOfCircle(Part.Circle(Vector(-91, -184, 0), Vector(0, 0, 1), 65), math.radians(66), math.radians(128)),  # 3
    Part.LineSegment(Vector(-131, -133, 0), Vector(-131, -114, 0)),  # 4
    Part.LineSegment(Vector(64, -107, 0), Vector(118, -107, 0)),  # 5
    Part.LineSegment(Vector(118, -107, 0), Vector(131, -114, 0)),  # 6
    Part.LineSegment(Vector(131, -114, 0), Vector(131, -133, 0)),  # 7
    Part.ArcOfCircle(Part.Circle(Vector(91, -184, 0), Vector(0, 0, 1), 65), math.radians(52), math.radians(114)),  # 8
    Part.LineSegment(Vector(64, -125, 0), Vector(64, -107, 0)),  # 9
], False)
sketch9.addConstraint([
    Sketcher.Constraint("Coincident", 0, 2, 1, 1),
    Sketcher.Constraint("Coincident", 1, 2, 2, 1),
    Sketcher.Constraint("Coincident", 2, 2, 3, 1),
    Sketcher.Constraint("Coincident", 3, 2, 4, 1),
    Sketcher.Constraint("Coincident", 4, 2, 0, 1),
    Sketcher.Constraint("Coincident", 5, 2, 6, 1),
    Sketcher.Constraint("Coincident", 6, 2, 7, 1),
    Sketcher.Constraint("Coincident", 7, 2, 8, 1),
    Sketcher.Constraint("Coincident", 8, 2, 9, 1),
    Sketcher.Constraint("Coincident", 9, 2, 5, 1),
    Sketcher.Constraint("Horizontal", 1),
    Sketcher.Constraint("Vertical", 2),
    Sketcher.Constraint("Vertical", 4),
    Sketcher.Constraint("Horizontal", 5),
    Sketcher.Constraint("Vertical", 7),
    Sketcher.Constraint("Vertical", 9),
    Sketcher.Constraint("Equal", 3, 8),
    Sketcher.Constraint("Symmetric", 3, 3, 8, 3, -2),
    Sketcher.Constraint("Symmetric", 0, 2, 5, 2, -2),
    Sketcher.Constraint("Symmetric", 4, 2, 6, 2, -2),
    Sketcher.Constraint("Horizontal", 2, 2, 8, 2),
    Sketcher.Constraint("Radius", 3, Q("65 mm")),
    Sketcher.Constraint("DistanceY", 3, 3, -1, 1, Q("184 mm")),
    Sketcher.Constraint("DistanceX", 0, 2, -1, 1, Q("118 mm")),
    Sketcher.Constraint("DistanceY", 0, 2, -1, 1, Q("107 mm")),
    Sketcher.Constraint("DistanceY", 4, 2, -1, 1, Q("114 mm")),
    Sketcher.Constraint("DistanceX", 3, 2, 3, 3, Q("40 mm")),
    Sketcher.Constraint("DistanceY", 2, 2, 2, 1, Q("17.821511 mm")),
    Sketcher.Constraint("DistanceX", 1, 1, 1, 2, Q("53.773837 mm")),
])
pad2 = body.newObject("PartDesign::Pad", "Pad001")
pad2.Profile = sketch9
pad2.Length = 5

# Sketch on XY plane
sketch10 = body.newObject("Sketcher::SketchObject", "Sketch009")
sketch10.AttachmentSupport = (doc.getObject("XY_Plane"), [""])
sketch10.MapMode = "FlatFace"
sketch10.AttachmentOffset = App.Placement(Vector(0, 0, 5), App.Rotation())
sketch10.addGeometry([
    Part.Circle(Vector(124.1, -119.6, 0), Vector(0, 0, 1), 2.1),
    Part.Circle(Vector(72.2, -114, 0), Vector(0, 0, 1), 2.1),
    Part.Circle(Vector(-72.2, -114, 0), Vector(0, 0, 1), 2.1),
    Part.Circle(Vector(-124.1, -119.6, 0), Vector(0, 0, 1), 2.1),
], False)
sketch10.addConstraint([
    Sketcher.Constraint("Equal", 0, 1),
    Sketcher.Constraint("Equal", 1, 2),
    Sketcher.Constraint("Equal", 2, 3),
    Sketcher.Constraint("Symmetric", 1, 3, 2, 3, -2),
    Sketcher.Constraint("Symmetric", 0, 3, 3, 3, -2),
    Sketcher.Constraint("Diameter", 0, Q("4.2 mm")),
    Sketcher.Constraint("DistanceY", 1, 3, -1, 1, Q("114 mm")),
    Sketcher.Constraint("DistanceX", 3, 3, 0, 3, Q("248.1109 mm")),
    Sketcher.Constraint("DistanceX", -1, 1, 1, 3, Q("72.228081 mm")),
    Sketcher.Constraint("DistanceY", 0, 3, -1, 1, Q("119.615683 mm")),
])
pocket8 = body.newObject("PartDesign::Pocket", "Pocket007")
pocket8.Profile = sketch10
pocket8.Length = 10

# Sketch on XY plane
sketch11 = body.newObject("Sketcher::SketchObject", "Sketch010")
sketch11.AttachmentSupport = (doc.getObject("XY_Plane"), [""])
sketch11.MapMode = "FlatFace"
sketch11.AttachmentOffset = App.Placement(Vector(0, 0, 5), App.Rotation())
sketch11.addGeometry([
    Part.Circle(Vector(-16.5, 29.5, 0), Vector(0, 0, 1), 2.1),
    Part.Circle(Vector(11.5, 29.5, 0), Vector(0, 0, 1), 2.1),
    Part.Circle(Vector(11.5, -28.5, 0), Vector(0, 0, 1), 2.1),
    Part.Circle(Vector(-16.5, -28.5, 0), Vector(0, 0, 1), 2.1),
], False)
sketch11.addConstraint([
    Sketcher.Constraint("Equal", 0, 1),
    Sketcher.Constraint("Equal", 1, 2),
    Sketcher.Constraint("Equal", 2, 3),
    Sketcher.Constraint("Horizontal", 0, 3, 1, 3),
    Sketcher.Constraint("Horizontal", 2, 3, 3, 3),
    Sketcher.Constraint("Vertical", 1, 3, 2, 3),
    Sketcher.Constraint("Vertical", 0, 3, 3, 3),
    Sketcher.Constraint("Diameter", 0, Q("4.2 mm")),
    Sketcher.Constraint("DistanceX", 0, 3, -1, 1, Q("16.464466 mm")),
    Sketcher.Constraint("DistanceY", -1, 1, 0, 3, Q("29.464466 mm")),
    Sketcher.Constraint("DistanceX", -1, 1, 1, 3, Q("11.464466 mm")),
    Sketcher.Constraint("DistanceY", 2, 3, -1, 1, Q("28.464466 mm")),
])
pocket9 = body.newObject("PartDesign::Pocket", "Pocket008")
pocket9.Profile = sketch11
pocket9.Type = "ThroughAll"

doc.recompute()
